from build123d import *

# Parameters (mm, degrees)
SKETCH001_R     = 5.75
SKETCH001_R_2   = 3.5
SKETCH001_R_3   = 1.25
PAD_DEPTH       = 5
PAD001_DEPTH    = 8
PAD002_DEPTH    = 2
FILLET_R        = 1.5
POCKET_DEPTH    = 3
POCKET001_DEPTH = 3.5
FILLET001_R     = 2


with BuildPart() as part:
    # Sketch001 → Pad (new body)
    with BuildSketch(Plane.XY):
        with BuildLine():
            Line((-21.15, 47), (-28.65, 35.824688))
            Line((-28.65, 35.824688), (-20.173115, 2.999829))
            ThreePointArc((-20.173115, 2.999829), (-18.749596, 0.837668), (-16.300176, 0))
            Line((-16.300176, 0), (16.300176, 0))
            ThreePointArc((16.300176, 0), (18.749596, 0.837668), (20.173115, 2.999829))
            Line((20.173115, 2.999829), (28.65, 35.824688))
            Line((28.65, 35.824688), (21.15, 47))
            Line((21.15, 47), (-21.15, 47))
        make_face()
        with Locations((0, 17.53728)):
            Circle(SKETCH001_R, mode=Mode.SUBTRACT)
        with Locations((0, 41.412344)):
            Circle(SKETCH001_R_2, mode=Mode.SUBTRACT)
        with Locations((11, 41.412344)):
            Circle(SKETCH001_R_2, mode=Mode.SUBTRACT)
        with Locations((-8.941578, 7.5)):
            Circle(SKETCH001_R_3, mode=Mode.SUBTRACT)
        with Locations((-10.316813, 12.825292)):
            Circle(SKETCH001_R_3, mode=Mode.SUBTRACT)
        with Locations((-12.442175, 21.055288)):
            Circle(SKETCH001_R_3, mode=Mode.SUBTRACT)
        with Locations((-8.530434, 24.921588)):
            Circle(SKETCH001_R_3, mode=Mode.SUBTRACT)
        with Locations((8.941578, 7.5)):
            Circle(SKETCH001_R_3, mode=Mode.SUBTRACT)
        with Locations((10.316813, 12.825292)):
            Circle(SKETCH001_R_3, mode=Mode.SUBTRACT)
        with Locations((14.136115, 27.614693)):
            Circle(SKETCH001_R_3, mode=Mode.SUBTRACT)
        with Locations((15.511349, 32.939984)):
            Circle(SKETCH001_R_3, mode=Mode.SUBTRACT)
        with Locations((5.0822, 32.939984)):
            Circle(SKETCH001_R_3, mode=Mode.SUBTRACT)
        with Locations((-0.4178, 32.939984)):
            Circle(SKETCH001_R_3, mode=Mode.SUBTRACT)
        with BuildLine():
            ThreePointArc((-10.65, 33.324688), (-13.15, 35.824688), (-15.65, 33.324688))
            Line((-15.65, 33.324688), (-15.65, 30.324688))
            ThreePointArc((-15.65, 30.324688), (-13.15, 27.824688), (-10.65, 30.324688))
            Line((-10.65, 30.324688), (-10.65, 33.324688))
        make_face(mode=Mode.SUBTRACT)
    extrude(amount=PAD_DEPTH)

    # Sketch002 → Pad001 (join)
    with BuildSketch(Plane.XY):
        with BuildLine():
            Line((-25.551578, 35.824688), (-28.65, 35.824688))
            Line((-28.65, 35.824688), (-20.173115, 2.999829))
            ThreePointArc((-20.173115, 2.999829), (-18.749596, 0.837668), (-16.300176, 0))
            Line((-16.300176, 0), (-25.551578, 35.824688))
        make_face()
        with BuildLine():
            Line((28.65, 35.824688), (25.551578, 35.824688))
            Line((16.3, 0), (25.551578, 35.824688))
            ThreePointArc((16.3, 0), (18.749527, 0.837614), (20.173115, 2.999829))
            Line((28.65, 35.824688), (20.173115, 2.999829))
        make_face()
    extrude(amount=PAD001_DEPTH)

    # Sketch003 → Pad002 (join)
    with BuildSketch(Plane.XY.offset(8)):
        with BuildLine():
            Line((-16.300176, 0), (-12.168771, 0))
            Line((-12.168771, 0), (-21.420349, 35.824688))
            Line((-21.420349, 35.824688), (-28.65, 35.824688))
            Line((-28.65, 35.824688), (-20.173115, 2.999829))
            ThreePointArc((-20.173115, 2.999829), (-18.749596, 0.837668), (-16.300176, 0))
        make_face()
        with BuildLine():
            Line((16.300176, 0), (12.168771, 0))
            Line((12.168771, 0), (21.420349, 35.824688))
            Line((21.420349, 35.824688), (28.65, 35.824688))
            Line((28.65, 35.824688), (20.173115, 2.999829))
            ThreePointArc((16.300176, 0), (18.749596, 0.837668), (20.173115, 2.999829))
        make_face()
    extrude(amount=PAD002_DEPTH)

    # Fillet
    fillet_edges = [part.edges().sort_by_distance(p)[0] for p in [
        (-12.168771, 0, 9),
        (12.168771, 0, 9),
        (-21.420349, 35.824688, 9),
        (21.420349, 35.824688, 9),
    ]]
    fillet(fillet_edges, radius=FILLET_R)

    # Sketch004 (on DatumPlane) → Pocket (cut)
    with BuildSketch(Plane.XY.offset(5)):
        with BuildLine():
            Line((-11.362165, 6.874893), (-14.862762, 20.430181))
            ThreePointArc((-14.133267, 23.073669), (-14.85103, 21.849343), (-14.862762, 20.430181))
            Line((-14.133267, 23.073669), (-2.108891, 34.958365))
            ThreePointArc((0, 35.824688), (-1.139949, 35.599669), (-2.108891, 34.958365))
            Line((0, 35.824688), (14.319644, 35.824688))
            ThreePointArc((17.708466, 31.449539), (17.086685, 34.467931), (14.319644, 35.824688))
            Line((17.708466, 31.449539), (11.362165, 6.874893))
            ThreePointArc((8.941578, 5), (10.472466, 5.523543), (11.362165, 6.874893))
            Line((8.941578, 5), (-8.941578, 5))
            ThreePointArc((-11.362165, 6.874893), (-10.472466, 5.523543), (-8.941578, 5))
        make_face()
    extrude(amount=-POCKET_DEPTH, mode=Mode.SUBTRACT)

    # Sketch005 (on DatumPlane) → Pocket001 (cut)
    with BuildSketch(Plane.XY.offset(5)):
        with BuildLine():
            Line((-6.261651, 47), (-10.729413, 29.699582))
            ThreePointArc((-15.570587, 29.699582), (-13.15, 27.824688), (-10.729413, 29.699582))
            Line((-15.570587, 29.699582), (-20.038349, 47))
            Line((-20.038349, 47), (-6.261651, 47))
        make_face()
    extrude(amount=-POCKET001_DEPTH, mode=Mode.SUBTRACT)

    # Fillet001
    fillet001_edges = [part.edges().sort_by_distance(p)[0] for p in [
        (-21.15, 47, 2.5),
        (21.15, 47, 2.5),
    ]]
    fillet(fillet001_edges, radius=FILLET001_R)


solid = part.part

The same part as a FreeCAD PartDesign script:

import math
import FreeCAD as App
import Part
import Sketcher
Q = App.Units.Quantity


def edges_at(feature, points):
    """Names of the edges that pass closest to the given points."""
    edges = feature.Shape.Edges
    near = lambda p: min(range(len(edges)), key=lambda i: edges[i].distToShape(Part.Vertex(*p))[0])
    return sorted({f"Edge{near(p) + 1}" for p in points})

doc = App.newDocument("Part")
body = doc.addObject("PartDesign::Body", "Body")

sketch1 = body.newObject("Sketcher::SketchObject", "Sketch")
sketch1.AttachmentSupport = (doc.getObject("XY_Plane"), [""])
sketch1.MapMode = "FlatFace"
sketch1.addGeometry([
    Part.LineSegment(App.Vector(-21.1, 47, 0), App.Vector(-28.6, 35.8, 0)),
    Part.LineSegment(App.Vector(-28.6, 35.8, 0), App.Vector(-20.2, 3, 0)),
    Part.ArcOfCircle(Part.Circle(App.Vector(-16.3, 4, 0), App.Vector(0, 0, 1), 4), math.radians(-166), math.radians(-90)),
    Part.LineSegment(App.Vector(-16.3, 0, 0), App.Vector(16.3, 0, 0)),
    Part.ArcOfCircle(Part.Circle(App.Vector(16.3, 4, 0), App.Vector(0, 0, 1), 4), math.radians(-90), math.radians(-14)),
    Part.LineSegment(App.Vector(20.2, 3, 0), App.Vector(28.6, 35.8, 0)),
    Part.LineSegment(App.Vector(28.6, 35.8, 0), App.Vector(21.1, 47, 0)),
    Part.LineSegment(App.Vector(21.1, 47, 0), App.Vector(-21.1, 47, 0)),
    Part.Circle(App.Vector(-8.9, 7.5, 0), App.Vector(0, 0, 1), 1.2),
    Part.Circle(App.Vector(-10.3, 12.8, 0), App.Vector(0, 0, 1), 1.2),
    Part.Circle(App.Vector(-12.4, 21.1, 0), App.Vector(0, 0, 1), 1.2),
    Part.Circle(App.Vector(-8.5, 24.9, 0), App.Vector(0, 0, 1), 1.2),
    Part.Circle(App.Vector(0, 17.5, 0), App.Vector(0, 0, 1), 5.8),
    Part.Circle(App.Vector(8.9, 7.5, 0), App.Vector(0, 0, 1), 1.2),
    Part.Circle(App.Vector(10.3, 12.8, 0), App.Vector(0, 0, 1), 1.2),
    Part.ArcOfCircle(Part.Circle(App.Vector(-13.2, 33.3, 0), App.Vector(0, 0, 1), 2.5), math.radians(0), math.radians(180)),
    Part.LineSegment(App.Vector(-10.7, 33.3, 0), App.Vector(-10.7, 30.3, 0)),
    Part.ArcOfCircle(Part.Circle(App.Vector(-13.2, 30.3, 0), App.Vector(0, 0, 1), 2.5), math.radians(180), math.radians(360)),
    Part.LineSegment(App.Vector(-15.7, 30.3, 0), App.Vector(-15.7, 33.3, 0)),
    Part.Circle(App.Vector(-0.4, 32.9, 0), App.Vector(0, 0, 1), 1.2),
    Part.Circle(App.Vector(0, 41.4, 0), App.Vector(0, 0, 1), 3.5),
    Part.Circle(App.Vector(5.1, 32.9, 0), App.Vector(0, 0, 1), 1.2),
    Part.Circle(App.Vector(14.1, 27.6, 0), App.Vector(0, 0, 1), 1.2),
    Part.Circle(App.Vector(15.5, 32.9, 0), App.Vector(0, 0, 1), 1.2),
    Part.Circle(App.Vector(11, 41.4, 0), App.Vector(0, 0, 1), 3.5),
], False)
sketch1.addConstraint([
    Sketcher.Constraint("Coincident", 0, 2, 1, 1),
    Sketcher.Constraint("Tangent", 1, 2, 2, 1),
    Sketcher.Constraint("Tangent", 2, 2, 3, 1),
    Sketcher.Constraint("Tangent", 3, 2, 4, 1),
    Sketcher.Constraint("Tangent", 4, 2, 5, 1),
    Sketcher.Constraint("Coincident", 5, 2, 6, 1),
    Sketcher.Constraint("Coincident", 6, 2, 7, 1),
    Sketcher.Constraint("Coincident", 7, 2, 0, 1),
    Sketcher.Constraint("Tangent", 15, 1, 16, 1),
    Sketcher.Constraint("Tangent", 16, 2, 17, 2),
    Sketcher.Constraint("Tangent", 17, 1, 18, 1),
    Sketcher.Constraint("Tangent", 18, 2, 15, 2),
    Sketcher.Constraint("Horizontal", 3),
    Sketcher.Constraint("Horizontal", 7),
    Sketcher.Constraint("Vertical", 16),
    Sketcher.Constraint("Vertical", 18),
    Sketcher.Constraint("Equal", 2, 4),
    Sketcher.Constraint("Equal", 8, 9),
    Sketcher.Constraint("Equal", 9, 10),
    Sketcher.Constraint("Equal", 10, 11),
    Sketcher.Constraint("Equal", 11, 13),
    Sketcher.Constraint("Equal", 13, 14),
    Sketcher.Constraint("Equal", 14, 19),
    Sketcher.Constraint("Equal", 19, 21),
    Sketcher.Constraint("Equal", 21, 22),
    Sketcher.Constraint("Equal", 22, 23),
    Sketcher.Constraint("Equal", 20, 24),
    Sketcher.Constraint("Symmetric", 2, 2, 3, 2, -1, 1),
    Sketcher.Constraint("Symmetric", 8, 3, 13, 3, -2),
    Sketcher.Constraint("Symmetric", 9, 3, 14, 3, -2),
    Sketcher.Constraint("Symmetric", 0, 2, 5, 2, -2),
    Sketcher.Constraint("PointOnObject", 12, 3, -2),
    Sketcher.Constraint("PointOnObject", 20, 3, -2),
    Sketcher.Constraint("Horizontal", 19, 3, 21, 3),
    Sketcher.Constraint("Horizontal", 21, 3, 23, 3),
    Sketcher.Constraint("Horizontal", 20, 3, 24, 3),
    Sketcher.Constraint("Equal", 0, 6),
    Sketcher.Constraint("Diameter", 20, Q("7 mm")),
    Sketcher.Constraint("Radius", 2, Q("3.999999 mm")),
    Sketcher.Constraint("Diameter", 8, Q("2.5 mm")),
    Sketcher.Constraint("Diameter", 12, Q("11.5 mm")),
    Sketcher.Constraint("Radius", 15, Q("2.5 mm")),
    Sketcher.Constraint("DistanceY", 16, 2, 16, 1, Q("3 mm")),
    Sketcher.Constraint("DistanceX", 7, 2, 7, 1, Q("42.3 mm")),
    Sketcher.Constraint("DistanceX", -1, 1, 24, 3, Q("11 mm")),
    Sketcher.Constraint("DistanceY", -1, 1, 6, 2, Q("47 mm")),
    Sketcher.Constraint("DistanceX", 7, 2, 15, 3, Q("8 mm")),
    Sketcher.Constraint("DistanceY", -1, 1, 8, 3, Q("7.5 mm")),
    Sketcher.Constraint("DistanceX", 19, 3, 21, 3, Q("5.5 mm")),
    Sketcher.Constraint("DistanceX", 0, 2, 15, 3, Q("15.5 mm")),
    Sketcher.Constraint("DistanceY", 15, 3, 0, 2, Q("2.5 mm")),
    Sketcher.Constraint("DistanceX", 2, 3, 10, 3, Q("3.858002 mm")),
    Sketcher.Constraint("DistanceX", 19, 3, -1, 1, Q("0.4178 mm")),
    Sketcher.Constraint("DistanceX", 2, 3, 8, 3, Q("7.358599 mm")),
    Sketcher.Constraint("DistanceY", 10, 3, 11, 3, Q("3.8663 mm")),
    Sketcher.Constraint("DistanceY", 11, 3, 15, 3, Q("8.4031 mm")),
    Sketcher.Constraint("DistanceY", 14, 3, 22, 3, Q("14.789401 mm")),
    Sketcher.Constraint("DistanceX", 3, 1, 3, 2, Q("32.600352 mm")),
    Sketcher.Constraint("DistanceY", -1, 1, 9, 3, Q("12.825292 mm")),
    Sketcher.Constraint("DistanceY", -1, 1, 10, 3, Q("21.055288 mm")),
    Sketcher.Constraint("DistanceY", -1, 1, 12, 3, Q("17.53728 mm")),
    Sketcher.Constraint("DistanceX", -1, 1, 23, 3, Q("15.511349 mm")),
    Sketcher.Constraint("DistanceX", 9, 3, 4, 3, Q("26.61699 mm")),
    Sketcher.Constraint("DistanceX", 10, 3, 11, 3, Q("3.911741 mm")),
    Sketcher.Constraint("DistanceY", 19, 3, 20, 3, Q("8.47236 mm")),
    Sketcher.Constraint("DistanceY", 22, 3, 21, 3, Q("5.325291 mm")),
    Sketcher.Constraint("DistanceX", -1, 1, 22, 3, Q("14.136115 mm")),
])
pad1 = body.newObject("PartDesign::Pad", "Pad")
pad1.Profile = sketch1
pad1.Length = 5

sketch2 = body.newObject("Sketcher::SketchObject", "Sketch001")
sketch2.AttachmentSupport = (doc.getObject("XY_Plane"), [""])
sketch2.MapMode = "FlatFace"
sketch2.addGeometry([
    Part.LineSegment(App.Vector(-25.6, 35.8, 0), App.Vector(-28.6, 35.8, 0)),
    Part.LineSegment(App.Vector(-28.6, 35.8, 0), App.Vector(-20.2, 3, 0)),
    Part.ArcOfCircle(Part.Circle(App.Vector(-16.3, 4, 0), App.Vector(0, 0, 1), 4), math.radians(-166), math.radians(-90)),
    Part.LineSegment(App.Vector(-16.3, 0, 0), App.Vector(-25.6, 35.8, 0)),
    Part.LineSegment(App.Vector(28.6, 35.8, 0), App.Vector(25.6, 35.8, 0)),
    Part.LineSegment(App.Vector(25.6, 35.8, 0), App.Vector(16.3, 0, 0)),
    Part.ArcOfCircle(Part.Circle(App.Vector(16.3, 4, 0), App.Vector(0, 0, 1), 4), math.radians(-90), math.radians(-14)),
    Part.LineSegment(App.Vector(20.2, 3, 0), App.Vector(28.6, 35.8, 0)),
], False)
sketch2.addConstraint([
    Sketcher.Constraint("Coincident", 0, 2, 1, 1),
    Sketcher.Constraint("Tangent", 1, 2, 2, 1),
    Sketcher.Constraint("Coincident", 2, 2, 3, 1),
    Sketcher.Constraint("Coincident", 3, 2, 0, 1),
    Sketcher.Constraint("Coincident", 4, 2, 5, 1),
    Sketcher.Constraint("Coincident", 5, 2, 6, 1),
    Sketcher.Constraint("Tangent", 6, 2, 7, 1),
    Sketcher.Constraint("Coincident", 7, 2, 4, 1),
    Sketcher.Constraint("Horizontal", 0),
    Sketcher.Constraint("Horizontal", 4),
    Sketcher.Constraint("Equal", 2, 6),
    Sketcher.Constraint("Symmetric", 2, 3, 6, 3, -2),
    Sketcher.Constraint("Symmetric", 3, 2, 4, 2, -2),
    Sketcher.Constraint("PointOnObject", 2, 2, -1),
    Sketcher.Constraint("Parallel", 5, 7),
    Sketcher.Constraint("Horizontal", 1, 2, 6, 2),
    Sketcher.Constraint("Radius", 2, Q("3.999999 mm")),
    Sketcher.Constraint("Distance", 5, Q("37 mm")),
    Sketcher.Constraint("DistanceX", -1, 1, 5, 2, Q("16.3 mm")),
    Sketcher.Constraint("DistanceX", 0, 2, -1, 1, Q("28.65 mm")),
    Sketcher.Constraint("DistanceX", 0, 2, 0, 1, Q("3.098422 mm")),
    Sketcher.Constraint("DistanceX", 3, 2, 2, 2, Q("9.251402 mm")),
])
pad2 = body.newObject("PartDesign::Pad", "Pad001")
pad2.Profile = sketch2
pad2.Length = 8

sketch3 = body.newObject("Sketcher::SketchObject", "Sketch002")
sketch3.AttachmentSupport = (doc.getObject("XY_Plane"), [""])
sketch3.MapMode = "FlatFace"
sketch3.AttachmentOffset = App.Placement(App.Vector(0, 0, 8), App.Rotation())
sketch3.addGeometry([
    Part.LineSegment(App.Vector(-16.3, 0, 0), App.Vector(-12.2, 0, 0)),
    Part.LineSegment(App.Vector(-12.2, 0, 0), App.Vector(-21.4, 35.8, 0)),
    Part.LineSegment(App.Vector(-21.4, 35.8, 0), App.Vector(-28.6, 35.8, 0)),
    Part.LineSegment(App.Vector(-28.6, 35.8, 0), App.Vector(-20.2, 3, 0)),
    Part.ArcOfCircle(Part.Circle(App.Vector(-16.3, 4, 0), App.Vector(0, 0, 1), 4), math.radians(-166), math.radians(-90)),
    Part.LineSegment(App.Vector(12.2, 0, 0), App.Vector(16.3, 0, 0)),
    Part.ArcOfCircle(Part.Circle(App.Vector(16.3, 4, 0), App.Vector(0, 0, 1), 4), math.radians(-90), math.radians(-14)),
    Part.LineSegment(App.Vector(20.2, 3, 0), App.Vector(28.6, 35.8, 0)),
    Part.LineSegment(App.Vector(28.6, 35.8, 0), App.Vector(21.4, 35.8, 0)),
    Part.LineSegment(App.Vector(21.4, 35.8, 0), App.Vector(12.2, 0, 0)),
], False)
sketch3.addConstraint([
    Sketcher.Constraint("Coincident", 0, 2, 1, 1),
    Sketcher.Constraint("Coincident", 1, 2, 2, 1),
    Sketcher.Constraint("Coincident", 2, 2, 3, 1),
    Sketcher.Constraint("Tangent", 3, 2, 4, 1),
    Sketcher.Constraint("Tangent", 4, 2, 0, 1),
    Sketcher.Constraint("Tangent", 5, 2, 6, 1),
    Sketcher.Constraint("Tangent", 6, 2, 7, 1),
    Sketcher.Constraint("Coincident", 7, 2, 8, 1),
    Sketcher.Constraint("Coincident", 8, 2, 9, 1),
    Sketcher.Constraint("Coincident", 9, 2, 5, 1),
    Sketcher.Constraint("Horizontal", 0),
    Sketcher.Constraint("Horizontal", 2),
    Sketcher.Constraint("Horizontal", 5),
    Sketcher.Constraint("Horizontal", 8),
    Sketcher.Constraint("Equal", 4, 6),
    Sketcher.Constraint("Symmetric", 4, 2, 5, 2, -1, 1),
    Sketcher.Constraint("Symmetric", 3, 2, 6, 2, -2),
    Sketcher.Constraint("Symmetric", 1, 2, 8, 2, -2),
    Sketcher.Constraint("Parallel", 1, 3),
    Sketcher.Constraint("Parallel", 7, 9),
    Sketcher.Constraint("Radius", 4, Q("3.999999 mm")),
    Sketcher.Constraint("Distance", 1, Q("37 mm")),
    Sketcher.Constraint("DistanceX", 2, 2, -1, 1, Q("28.65 mm")),
    Sketcher.Constraint("DistanceX", 2, 2, 2, 1, Q("7.229651 mm")),
    Sketcher.Constraint("DistanceX", 0, 1, 0, 2, Q("4.131405 mm")),
])
pad3 = body.newObject("PartDesign::Pad", "Pad002")
pad3.Profile = sketch3
pad3.Length = 2
doc.recompute()

fillet = body.newObject("PartDesign::Fillet", "Fillet")
fillet.Base = (pad3, edges_at(pad3, [
    (-12.169, 0, 9),
    (12.169, 0, 9),
    (-21.42, 35.825, 9),
    (21.42, 35.825, 9),
]))
fillet.Radius = 1.5

sketch4 = body.newObject("Sketcher::SketchObject", "Sketch003")
sketch4.AttachmentSupport = (doc.getObject("XY_Plane"), [""])
sketch4.MapMode = "FlatFace"
sketch4.AttachmentOffset = App.Placement(App.Vector(0, 0, 5), App.Rotation())
sketch4.addGeometry([
    Part.LineSegment(App.Vector(-14.862762, 20.430181, 0), App.Vector(-11.362165, 6.874893, 0)),
    Part.ArcOfCircle(Part.Circle(App.Vector(-8.941578, 7.5, 0), App.Vector(0, 0, 1), 2.5), math.radians(-165.519958), math.radians(-89.999996)),
    Part.LineSegment(App.Vector(-8.941578, 5, 0), App.Vector(8.941578, 5, 0)),
    Part.ArcOfCircle(Part.Circle(App.Vector(8.941578, 7.5, 0), App.Vector(0, 0, 1), 2.5), math.radians(-90.000004), math.radians(-14.480042)),
    Part.LineSegment(App.Vector(11.362165, 6.874893, 0), App.Vector(17.708466, 31.449539, 0)),
    Part.ArcOfCircle(Part.Circle(App.Vector(14.319646, 32.324689, 0), App.Vector(0, 0, 1), 3.499999), math.radians(-14.480061), math.radians(90.00003)),
    Part.LineSegment(App.Vector(14.319644, 35.824688, 0), App.Vector(0, 35.824688, 0)),
    Part.ArcOfCircle(Part.Circle(App.Vector(-0.000003, 32.824696, 0), App.Vector(0, 0, 1), 2.999992), math.radians(89.999942), math.radians(134.665337)),
    Part.LineSegment(App.Vector(-2.108891, 34.958365, 0), App.Vector(-14.133267, 23.073669, 0)),
    Part.ArcOfCircle(Part.Circle(App.Vector(-12.200117, 21.117799, 0), App.Vector(0, 0, 1), 2.75), math.radians(134.665279), math.radians(194.480049)),
], False)
sketch4.addConstraint([
    Sketcher.Constraint("Coincident", 0, 2, 1, 1),
    Sketcher.Constraint("Coincident", 1, 2, 2, 1),
    Sketcher.Constraint("Coincident", 2, 2, 3, 1),
    Sketcher.Constraint("Coincident", 3, 2, 4, 1),
    Sketcher.Constraint("Coincident", 4, 2, 5, 1),
    Sketcher.Constraint("Coincident", 5, 2, 6, 1),
    Sketcher.Constraint("Coincident", 6, 2, 7, 1),
    Sketcher.Constraint("Coincident", 7, 2, 8, 1),
    Sketcher.Constraint("Coincident", 8, 2, 9, 1),
    Sketcher.Constraint("Coincident", 9, 2, 0, 1),
    Sketcher.Constraint("Horizontal", 2),
    Sketcher.Constraint("Horizontal", 6),
    Sketcher.Constraint("PointOnObject", 6, 2, -2),
    Sketcher.Constraint("Radius", 1, Q("2.5 mm")),
    Sketcher.Constraint("Radius", 3, Q("2.5 mm")),
    Sketcher.Constraint("Radius", 5, Q("3.499999 mm")),
    Sketcher.Constraint("Radius", 9, Q("2.75 mm")),
    Sketcher.Constraint("Distance", 0, Q("14 mm")),
    Sketcher.Constraint("DistanceY", -1, 1, 1, 2, Q("5 mm")),
    Sketcher.Constraint("Radius", 7, Q("2.999992 mm")),
    Sketcher.Constraint("DistanceY", -1, 1, 9, 3, Q("21.117799 mm")),
    Sketcher.Constraint("DistanceX", 3, 2, 4, 2, Q("6.346301 mm")),
    Sketcher.Constraint("DistanceX", 2, 1, 2, 2, Q("17.883156 mm")),
    Sketcher.Constraint("DistanceX", 6, 2, 6, 1, Q("14.319644 mm")),
    Sketcher.Constraint("DistanceX", 1, 3, -1, 1, Q("8.941578 mm")),
    Sketcher.Constraint("DistanceX", -1, 1, 3, 3, Q("8.941578 mm")),
    Sketcher.Constraint("DistanceY", -1, 1, 5, 3, Q("32.324689 mm")),
    Sketcher.Constraint("DistanceY", -1, 1, 4, 2, Q("31.449539 mm")),
    Sketcher.Constraint("DistanceX", 7, 2, -1, 1, Q("2.108891 mm")),
    Sketcher.Constraint("DistanceY", -1, 1, 8, 2, Q("23.073669 mm")),
    Sketcher.Constraint("DistanceY", -1, 1, 9, 2, Q("20.430181 mm")),
    Sketcher.Constraint("DistanceX", 7, 3, 5, 3, Q("14.319649 mm")),
    Sketcher.Constraint("DistanceX", 7, 3, 3, 3, Q("8.941581 mm")),
    Sketcher.Constraint("DistanceX", 9, 3, 1, 3, Q("3.258538 mm")),
    Sketcher.Constraint("DistanceX", 9, 3, 1, 2, Q("3.258539 mm")),
])
pocket1 = body.newObject("PartDesign::Pocket", "Pocket")
pocket1.Profile = sketch4
pocket1.Length = 3

sketch5 = body.newObject("Sketcher::SketchObject", "Sketch004")
sketch5.AttachmentSupport = (doc.getObject("XY_Plane"), [""])
sketch5.MapMode = "FlatFace"
sketch5.AttachmentOffset = App.Placement(App.Vector(0, 0, 5), App.Rotation())
sketch5.addGeometry([
    Part.LineSegment(App.Vector(-10.7, 29.7, 0), App.Vector(-6.3, 47, 0)),
    Part.LineSegment(App.Vector(-6.3, 47, 0), App.Vector(-20, 47, 0)),
    Part.LineSegment(App.Vector(-20, 47, 0), App.Vector(-15.6, 29.7, 0)),
    Part.ArcOfCircle(Part.Circle(App.Vector(-13.2, 30.3, 0), App.Vector(0, 0, 1), 2.5), math.radians(-166), math.radians(-14)),
], False)
sketch5.addConstraint([
    Sketcher.Constraint("Coincident", 0, 2, 1, 1),
    Sketcher.Constraint("Coincident", 1, 2, 2, 1),
    Sketcher.Constraint("Tangent", 2, 2, 3, 1),
    Sketcher.Constraint("Tangent", 3, 2, 0, 1),
    Sketcher.Constraint("Horizontal", 1),
    Sketcher.Constraint("Horizontal", 2, 2, 3, 2),
    Sketcher.Constraint("Radius", 3, Q("2.5 mm")),
    Sketcher.Constraint("DistanceY", -1, 1, 0, 2, Q("47 mm")),
    Sketcher.Constraint("DistanceX", 3, 3, -1, 1, Q("13.15 mm")),
    Sketcher.Constraint("Distance", 0, Q("17.867998 mm")),
    Sketcher.Constraint("DistanceX", 1, 2, 1, 1, Q("13.776698 mm")),
])
pocket2 = body.newObject("PartDesign::Pocket", "Pocket001")
pocket2.Profile = sketch5
pocket2.Length = 3.5
doc.recompute()

fillet2 = body.newObject("PartDesign::Fillet", "Fillet001")
fillet2.Base = (pocket2, edges_at(pocket2, [(-21.15, 47, 2.5), (21.15, 47, 2.5)]))
fillet2.Radius = 2

doc.recompute()
